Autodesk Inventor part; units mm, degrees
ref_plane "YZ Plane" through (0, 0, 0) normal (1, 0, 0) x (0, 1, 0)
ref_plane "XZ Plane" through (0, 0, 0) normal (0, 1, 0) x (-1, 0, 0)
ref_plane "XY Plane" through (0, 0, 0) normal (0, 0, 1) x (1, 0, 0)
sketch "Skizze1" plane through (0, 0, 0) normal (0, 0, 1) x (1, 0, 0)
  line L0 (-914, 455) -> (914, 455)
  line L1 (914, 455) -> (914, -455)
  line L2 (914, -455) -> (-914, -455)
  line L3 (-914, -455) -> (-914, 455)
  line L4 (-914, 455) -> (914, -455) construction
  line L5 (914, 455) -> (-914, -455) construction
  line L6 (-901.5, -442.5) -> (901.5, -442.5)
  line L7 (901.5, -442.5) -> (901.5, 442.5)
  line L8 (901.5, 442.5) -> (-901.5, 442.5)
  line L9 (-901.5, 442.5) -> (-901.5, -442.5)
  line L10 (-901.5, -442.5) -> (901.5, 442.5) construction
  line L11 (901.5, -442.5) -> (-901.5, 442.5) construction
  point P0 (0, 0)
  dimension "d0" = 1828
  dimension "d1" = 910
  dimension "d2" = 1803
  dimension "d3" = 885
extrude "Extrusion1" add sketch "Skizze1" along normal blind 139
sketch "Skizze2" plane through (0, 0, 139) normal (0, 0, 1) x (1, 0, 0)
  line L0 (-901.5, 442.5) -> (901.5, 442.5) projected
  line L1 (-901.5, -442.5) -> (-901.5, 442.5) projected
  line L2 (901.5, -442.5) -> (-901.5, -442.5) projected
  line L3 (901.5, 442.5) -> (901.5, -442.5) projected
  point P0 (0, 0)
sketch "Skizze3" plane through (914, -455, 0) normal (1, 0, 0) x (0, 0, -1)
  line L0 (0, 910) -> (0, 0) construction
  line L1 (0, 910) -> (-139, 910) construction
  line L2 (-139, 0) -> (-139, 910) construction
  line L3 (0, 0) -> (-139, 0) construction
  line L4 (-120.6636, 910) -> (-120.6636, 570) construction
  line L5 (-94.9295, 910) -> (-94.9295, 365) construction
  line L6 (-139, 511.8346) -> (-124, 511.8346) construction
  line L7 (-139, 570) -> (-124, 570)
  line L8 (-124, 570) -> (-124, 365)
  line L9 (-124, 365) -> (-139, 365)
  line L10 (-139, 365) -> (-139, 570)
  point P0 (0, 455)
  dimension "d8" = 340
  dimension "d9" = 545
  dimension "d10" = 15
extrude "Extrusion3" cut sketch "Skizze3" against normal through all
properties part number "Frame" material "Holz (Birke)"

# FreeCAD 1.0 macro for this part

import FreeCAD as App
import Part
import Sketcher
from FreeCAD import Vector
Q = App.Units.Quantity

doc = App.newDocument("Part")
body = doc.addObject("PartDesign::Body", "Body")

sketch1 = body.newObject("Sketcher::SketchObject", "Sketch")
sketch1.AttachmentSupport = (doc.getObject("XY_Plane"), [""])
sketch1.MapMode = "FlatFace"
sketch1.addGeometry(Part.LineSegment(Vector(914, 455, 0), Vector(-914, 455, 0)), False)
sketch1.addGeometry(Part.LineSegment(Vector(-914, 455, 0), Vector(-914, -455, 0)), False)
sketch1.addGeometry(Part.LineSegment(Vector(-914, -455, 0), Vector(914, -455, 0)), False)
sketch1.addGeometry(Part.LineSegment(Vector(914, -455, 0), Vector(914, 455, 0)), False)
sketch1.addGeometry(Part.LineSegment(Vector(901.5, -442.5, 0), Vector(-901.5, -442.5, 0)), False)
sketch1.addGeometry(Part.LineSegment(Vector(-901.5, -442.5, 0), Vector(-901.5, 442.5, 0)), False)
sketch1.addGeometry(Part.LineSegment(Vector(-901.5, 442.5, 0), Vector(901.5, 442.5, 0)), False)
sketch1.addGeometry(Part.LineSegment(Vector(901.5, 442.5, 0), Vector(901.5, -442.5, 0)), False)
sketch1.addConstraint(Sketcher.Constraint("Coincident", 0, 2, 1, 1))
sketch1.addConstraint(Sketcher.Constraint("Coincident", 1, 2, 2, 1))
sketch1.addConstraint(Sketcher.Constraint("Coincident", 2, 2, 3, 1))
sketch1.addConstraint(Sketcher.Constraint("Coincident", 3, 2, 0, 1))
sketch1.addConstraint(Sketcher.Constraint("Coincident", 4, 2, 5, 1))
sketch1.addConstraint(Sketcher.Constraint("Coincident", 5, 2, 6, 1))
sketch1.addConstraint(Sketcher.Constraint("Coincident", 6, 2, 7, 1))
sketch1.addConstraint(Sketcher.Constraint("Coincident", 7, 2, 4, 1))
sketch1.addConstraint(Sketcher.Constraint("Horizontal", 0))
sketch1.addConstraint(Sketcher.Constraint("Vertical", 1))
sketch1.addConstraint(Sketcher.Constraint("Horizontal", 2))
sketch1.addConstraint(Sketcher.Constraint("Vertical", 3))
sketch1.addConstraint(Sketcher.Constraint("Horizontal", 4))
sketch1.addConstraint(Sketcher.Constraint("Vertical", 5))
sketch1.addConstraint(Sketcher.Constraint("Horizontal", 6))
sketch1.addConstraint(Sketcher.Constraint("Vertical", 7))
sketch1.addConstraint(Sketcher.Constraint("Symmetric", 0, 2, 2, 2, -1, 1))
sketch1.addConstraint(Sketcher.Constraint("Symmetric", 4, 2, 6, 2, -1, 1))
sketch1.addConstraint(Sketcher.Constraint("DistanceX", 0, 2, 0, 1, Q("1828 mm")))
sketch1.addConstraint(Sketcher.Constraint("DistanceX", 4, 2, 4, 1, Q("1803 mm")))
sketch1.addConstraint(Sketcher.Constraint("DistanceY", 1, 2, 1, 1, Q("910 mm")))
sketch1.addConstraint(Sketcher.Constraint("DistanceY", 5, 1, 5, 2, Q("885 mm")))
pad1 = body.newObject("PartDesign::Pad", "Pad")
pad1.Profile = sketch1
pad1.Length = 139

sketch2 = body.newObject("Sketcher::SketchObject", "Sketch001")
sketch2.AttachmentSupport = (doc.getObject("YZ_Plane"), [""])
sketch2.MapMode = "FlatFace"
sketch2.AttachmentOffset = App.Placement(Vector(0, 0, 914), App.Rotation())
sketch2.addGeometry(Part.LineSegment(Vector(115, 124, 0), Vector(115, 139, 0)), False)
sketch2.addGeometry(Part.LineSegment(Vector(115, 139, 0), Vector(-90, 139, 0)), False)
sketch2.addGeometry(Part.LineSegment(Vector(-90, 139, 0), Vector(-90, 124, 0)), False)
sketch2.addGeometry(Part.LineSegment(Vector(-90, 124, 0), Vector(115, 124, 0)), False)
sketch2.addConstraint(Sketcher.Constraint("Coincident", 0, 2, 1, 1))
sketch2.addConstraint(Sketcher.Constraint("Coincident", 1, 2, 2, 1))
sketch2.addConstraint(Sketcher.Constraint("Coincident", 2, 2, 3, 1))
sketch2.addConstraint(Sketcher.Constraint("Coincident", 3, 2, 0, 1))
sketch2.addConstraint(Sketcher.Constraint("Vertical", 0))
sketch2.addConstraint(Sketcher.Constraint("Horizontal", 1))
sketch2.addConstraint(Sketcher.Constraint("Vertical", 2))
sketch2.addConstraint(Sketcher.Constraint("Horizontal", 3))
sketch2.addConstraint(Sketcher.Constraint("DistanceY", 0, 1, 0, 2, Q("15 mm")))
sketch2.addConstraint(Sketcher.Constraint("DistanceX", 1, 2, 1, 1, Q("205 mm")))
sketch2.addConstraint(Sketcher.Constraint("DistanceX", -1, 1, 0, 2, Q("115 mm")))
sketch2.addConstraint(Sketcher.Constraint("DistanceY", -1, 1, 0, 2, Q("139 mm")))
pocket1 = body.newObject("PartDesign::Pocket", "Pocket")
pocket1.Profile = sketch2
pocket1.Type = "ThroughAll"

doc.recompute()
